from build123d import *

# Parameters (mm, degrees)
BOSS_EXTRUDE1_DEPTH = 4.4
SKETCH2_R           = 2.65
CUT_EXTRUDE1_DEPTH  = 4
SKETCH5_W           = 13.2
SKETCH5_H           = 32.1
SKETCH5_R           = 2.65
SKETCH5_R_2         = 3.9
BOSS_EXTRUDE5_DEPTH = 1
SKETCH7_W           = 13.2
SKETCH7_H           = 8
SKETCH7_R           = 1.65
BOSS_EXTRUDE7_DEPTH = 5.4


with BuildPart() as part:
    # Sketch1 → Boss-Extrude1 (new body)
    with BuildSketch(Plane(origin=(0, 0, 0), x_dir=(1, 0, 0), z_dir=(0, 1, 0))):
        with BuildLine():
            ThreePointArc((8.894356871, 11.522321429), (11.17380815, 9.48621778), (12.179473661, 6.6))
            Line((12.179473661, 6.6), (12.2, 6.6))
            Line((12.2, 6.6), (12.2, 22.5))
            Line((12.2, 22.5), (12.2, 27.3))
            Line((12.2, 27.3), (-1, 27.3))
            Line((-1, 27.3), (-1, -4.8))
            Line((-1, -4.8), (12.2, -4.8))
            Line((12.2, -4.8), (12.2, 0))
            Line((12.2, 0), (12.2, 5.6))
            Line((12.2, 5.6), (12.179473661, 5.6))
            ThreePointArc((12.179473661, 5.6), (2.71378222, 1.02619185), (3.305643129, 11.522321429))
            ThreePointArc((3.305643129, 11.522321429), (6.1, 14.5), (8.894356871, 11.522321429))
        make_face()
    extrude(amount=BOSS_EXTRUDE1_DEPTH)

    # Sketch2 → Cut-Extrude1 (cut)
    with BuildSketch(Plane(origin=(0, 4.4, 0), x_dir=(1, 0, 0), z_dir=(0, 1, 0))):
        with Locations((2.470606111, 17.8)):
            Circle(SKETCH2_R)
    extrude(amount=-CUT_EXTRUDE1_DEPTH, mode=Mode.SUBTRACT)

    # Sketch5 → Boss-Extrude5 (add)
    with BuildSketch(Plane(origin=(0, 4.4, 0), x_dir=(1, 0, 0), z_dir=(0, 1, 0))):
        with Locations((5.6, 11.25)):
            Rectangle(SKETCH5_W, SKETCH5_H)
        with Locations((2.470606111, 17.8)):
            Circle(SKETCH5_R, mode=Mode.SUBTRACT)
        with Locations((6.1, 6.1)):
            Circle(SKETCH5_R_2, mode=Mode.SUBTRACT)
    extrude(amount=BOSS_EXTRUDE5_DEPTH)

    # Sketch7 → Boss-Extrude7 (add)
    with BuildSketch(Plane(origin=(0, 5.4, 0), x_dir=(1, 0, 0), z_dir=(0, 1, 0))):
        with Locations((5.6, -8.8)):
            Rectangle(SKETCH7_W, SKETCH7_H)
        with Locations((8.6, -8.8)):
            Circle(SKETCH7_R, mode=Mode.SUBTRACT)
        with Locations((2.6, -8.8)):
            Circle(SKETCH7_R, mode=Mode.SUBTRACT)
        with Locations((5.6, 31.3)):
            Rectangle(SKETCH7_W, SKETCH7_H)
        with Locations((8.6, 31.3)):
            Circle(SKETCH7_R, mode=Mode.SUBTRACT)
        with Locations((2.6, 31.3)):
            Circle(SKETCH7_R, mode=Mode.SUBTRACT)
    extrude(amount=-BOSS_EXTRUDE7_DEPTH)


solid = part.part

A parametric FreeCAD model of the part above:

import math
import FreeCAD as App
import Part
import Sketcher
Q = App.Units.Quantity


def add_polygon(sketch, points):
    """Adds a closed chain of lines whose ends are joined by coincident constraints."""
    first, n = sketch.GeometryCount, len(points)
    for a, b in zip(points, points[1:] + points[:1]):
        sketch.addGeometry(Part.LineSegment(App.Vector(*a, 0), App.Vector(*b, 0)), False)
    for i in range(n):
        sketch.addConstraint(Sketcher.Constraint("Coincident", first + i, 2, first + (i + 1) % n, 1))

doc = App.newDocument("Part")
params = doc.addObject("Spreadsheet::Sheet", "Params")
for row, (alias, value) in enumerate([
    ("sketch1_radius", "6.1 mm"),
    ("sketch1_radius2", "2.8 mm"),
    ("sketch1_width", "13.2 mm"),
    ("sketch1_height", "20.7 mm"),
    ("sketch1_height2", "32.1 mm"),
    ("pad1_length", "4.4 mm"),
    ("sketch2_diameter", "5.3 mm"),
    ("pocket1_length", "4 mm"),
    ("sketch3_diameter", "7.8 mm"),
    ("sketch3_diameter2", "5.3 mm"),
    ("sketch3_width", "13.2 mm"),
    ("sketch3_height", "32.1 mm"),
    ("pad2_length", "1 mm"),
    ("sketch4_diameter", "3.3 mm"),
    ("sketch4_height", "8 mm"),
    ("sketch4_width", "13.2 mm"),
    ("pad3_length", "5.4 mm"),
], start=1):
    params.set(f"A{row}", alias)
    params.set(f"B{row}", "=" + value)
    params.setAlias(f"B{row}", alias)

body = doc.addObject("PartDesign::Body", "Body")

# Sketch on XZ plane
sketch1 = body.newObject("Sketcher::SketchObject", "Sketch")
sketch1.AttachmentSupport = (doc.getObject("XZ_Plane"), [""])
sketch1.MapMode = "FlatFace"
sketch1.addGeometry([
    Part.ArcOfCircle(Part.Circle(App.Vector(6.1, -6.1, 0), App.Vector(0, 0, 1), 6.1), math.radians(-63), math.radians(-5)),  # 0
    Part.LineSegment(App.Vector(12.179, -6.6, 0), App.Vector(12.2, -6.6, 0)),  # 1
    Part.LineSegment(App.Vector(12.2, -6.6, 0), App.Vector(12.2, -27.3, 0)),  # 2
    Part.LineSegment(App.Vector(12.2, -27.3, 0), App.Vector(-1, -27.3, 0)),  # 3
    Part.LineSegment(App.Vector(-1, -27.3, 0), App.Vector(-1, 4.8, 0)),  # 4
    Part.LineSegment(App.Vector(-1, 4.8, 0), App.Vector(12.2, 4.8, 0)),  # 5
    Part.LineSegment(App.Vector(12.2, 4.8, 0), App.Vector(12.2, -5.6, 0)),  # 6
    Part.LineSegment(App.Vector(12.2, -5.6, 0), App.Vector(12.179, -5.6, 0)),  # 7
    Part.ArcOfCircle(Part.Circle(App.Vector(6.1, -6.1, 0), App.Vector(0, 0, 1), 6.1), math.radians(5), math.radians(243)),  # 8
    Part.ArcOfCircle(Part.Circle(App.Vector(6.1, -11.7, 0), App.Vector(0, 0, 1), 2.8), math.radians(176), math.radians(364)),  # 9
], False)
sketch1.addConstraint([
    Sketcher.Constraint("Coincident", 0, 2, 1, 1),
    Sketcher.Constraint("Coincident", 1, 2, 2, 1),
    Sketcher.Constraint("Coincident", 2, 2, 3, 1),
    Sketcher.Constraint("Coincident", 3, 2, 4, 1),
    Sketcher.Constraint("Coincident", 4, 2, 5, 1),
    Sketcher.Constraint("Coincident", 5, 2, 6, 1),
    Sketcher.Constraint("Coincident", 6, 2, 7, 1),
    Sketcher.Constraint("Coincident", 7, 2, 8, 1),
    Sketcher.Constraint("Coincident", 8, 2, 9, 1),
    Sketcher.Constraint("Coincident", 9, 2, 0, 1),
    Sketcher.Constraint("Horizontal", 1),
    Sketcher.Constraint("Vertical", 2),
    Sketcher.Constraint("Horizontal", 3),
    Sketcher.Constraint("Vertical", 4),
    Sketcher.Constraint("Horizontal", 5),
    Sketcher.Constraint("Vertical", 6),
    Sketcher.Constraint("Horizontal", 7),
    Sketcher.Constraint("Coincident", 8, 3, 0, 3),
    Sketcher.Constraint("Equal", 0, 8),
    Sketcher.Constraint("Horizontal", 8, 2, 9, 2),
    Sketcher.Constraint("Vertical", 2, 2, 5, 2),
    Sketcher.Constraint("Vertical", 0, 2, 7, 2),
    Sketcher.Constraint("Radius", 0, Q("6.1 mm")),
    Sketcher.Constraint("Radius", 9, Q("2.8 mm")),
    Sketcher.Constraint("DistanceX", 3, 2, 3, 1, Q("13.2 mm")),
    Sketcher.Constraint("DistanceY", 2, 2, 2, 1, Q("20.7 mm")),
    Sketcher.Constraint("DistanceY", 4, 1, 4, 2, Q("32.1 mm")),
    Sketcher.Constraint("DistanceY", 6, 2, 6, 1, Q("10.4 mm")),
    Sketcher.Constraint("DistanceX", 3, 2, -1, 1, Q("1 mm")),
    Sketcher.Constraint("DistanceX", -1, 1, 0, 3, Q("6.1 mm")),
    Sketcher.Constraint("DistanceY", 0, 3, -1, 1, Q("6.1 mm")),
    Sketcher.Constraint("DistanceY", 9, 3, -1, 1, Q("11.7 mm")),
])
sketch1.setExpression("Constraints[22]", "Params.sketch1_radius")
sketch1.setExpression("Constraints[23]", "Params.sketch1_radius2")
sketch1.setExpression("Constraints[24]", "Params.sketch1_width")
sketch1.setExpression("Constraints[25]", "Params.sketch1_height")
sketch1.setExpression("Constraints[26]", "Params.sketch1_height2")
pad1 = body.newObject("PartDesign::Pad", "Pad")
pad1.Profile = sketch1
pad1.setExpression("Length", "Params.pad1_length")
pad1.Reversed = True

# Sketch on XZ plane
sketch2 = body.newObject("Sketcher::SketchObject", "Sketch001")
sketch2.AttachmentSupport = (doc.getObject("XZ_Plane"), [""])
sketch2.MapMode = "FlatFace"
sketch2.AttachmentOffset = App.Placement(App.Vector(0, 0, -4.4), App.Rotation())
sketch2.addGeometry(Part.Circle(App.Vector(2.5, -17.8, 0), App.Vector(0, 0, 1), 2.6), False)
sketch2.addConstraint([
    Sketcher.Constraint("Diameter", 0, Q("5.3 mm")),
    Sketcher.Constraint("DistanceY", 0, 3, -1, 1, Q("17.8 mm")),
    Sketcher.Constraint("DistanceX", -1, 1, 0, 3, Q("2.470606 mm")),
])
sketch2.setExpression("Constraints[0]", "Params.sketch2_diameter")
pocket1 = body.newObject("PartDesign::Pocket", "Pocket")
pocket1.Profile = sketch2
pocket1.setExpression("Length", "Params.pocket1_length")
pocket1.Reversed = True

# Sketch on XZ plane
sketch3 = body.newObject("Sketcher::SketchObject", "Sketch002")
sketch3.AttachmentSupport = (doc.getObject("XZ_Plane"), [""])
sketch3.MapMode = "FlatFace"
sketch3.AttachmentOffset = App.Placement(App.Vector(0, 0, -4.4), App.Rotation())
add_polygon(sketch3, [(-1, -27.3), (-1, 4.8), (12.2, 4.8), (12.2, -27.3)])  # lines 0-3
sketch3.addGeometry(Part.Circle(App.Vector(6.1, -6.1, 0), App.Vector(0, 0, 1), 3.9), False)  # 4
sketch3.addGeometry(Part.Circle(App.Vector(2.5, -17.8, 0), App.Vector(0, 0, 1), 2.6), False)  # 5
sketch3.addConstraint([
    Sketcher.Constraint("Vertical", 0),
    Sketcher.Constraint("Horizontal", 1),
    Sketcher.Constraint("Vertical", 2),
    Sketcher.Constraint("Horizontal", 3),
    Sketcher.Constraint("Diameter", 4, Q("7.8 mm")),
    Sketcher.Constraint("Diameter", 5, Q("5.3 mm")),
    Sketcher.Constraint("DistanceX", 1, 1, 1, 2, Q("13.2 mm")),
    Sketcher.Constraint("DistanceY", 0, 1, 0, 2, Q("32.1 mm")),
    Sketcher.Constraint("DistanceX", 0, 2, -1, 1, Q("1 mm")),
    Sketcher.Constraint("DistanceX", -1, 1, 4, 3, Q("6.1 mm")),
    Sketcher.Constraint("DistanceY", 4, 3, -1, 1, Q("6.1 mm")),
    Sketcher.Constraint("DistanceY", 5, 3, -1, 1, Q("17.8 mm")),
    Sketcher.Constraint("DistanceY", -1, 1, 0, 2, Q("4.8 mm")),
    Sketcher.Constraint("DistanceX", -1, 1, 5, 3, Q("2.470606 mm")),
])
sketch3.setExpression("Constraints[8]", "Params.sketch3_diameter")
sketch3.setExpression("Constraints[9]", "Params.sketch3_diameter2")
sketch3.setExpression("Constraints[10]", "Params.sketch3_width")
sketch3.setExpression("Constraints[11]", "Params.sketch3_height")
pad2 = body.newObject("PartDesign::Pad", "Pad001")
pad2.Profile = sketch3
pad2.setExpression("Length", "Params.pad2_length")
pad2.Reversed = True

# Sketch on XZ plane
sketch4 = body.newObject("Sketcher::SketchObject", "Sketch003")
sketch4.AttachmentSupport = (doc.getObject("XZ_Plane"), [""])
sketch4.MapMode = "FlatFace"
sketch4.AttachmentOffset = App.Placement(App.Vector(0, 0, -5.4), App.Rotation())
add_polygon(sketch4, [(-1, 4.8), (-1, 12.8), (12.2, 12.8), (12.2, 4.8)])  # lines 0-3
sketch4.addGeometry(Part.Circle(App.Vector(2.6, 8.8, 0), App.Vector(0, 0, 1), 1.6), False)  # 4
sketch4.addGeometry(Part.Circle(App.Vector(8.6, 8.8, 0), App.Vector(0, 0, 1), 1.6), False)  # 5
add_polygon(sketch4, [(-1, -35.3), (-1, -27.3), (12.2, -27.3), (12.2, -35.3)])  # lines 6-9
sketch4.addGeometry(Part.Circle(App.Vector(2.6, -31.3, 0), App.Vector(0, 0, 1), 1.6), False)  # 10
sketch4.addGeometry(Part.Circle(App.Vector(8.6, -31.3, 0), App.Vector(0, 0, 1), 1.6), False)  # 11
sketch4.addConstraint([
    Sketcher.Constraint("Vertical", 0),
    Sketcher.Constraint("Horizontal", 1),
    Sketcher.Constraint("Vertical", 2),
    Sketcher.Constraint("Horizontal", 3),
    Sketcher.Constraint("Vertical", 6),
    Sketcher.Constraint("Horizontal", 7),
    Sketcher.Constraint("Vertical", 8),
    Sketcher.Constraint("Horizontal", 9),
    Sketcher.Constraint("Equal", 4, 5),
    Sketcher.Constraint("Equal", 5, 10),
    Sketcher.Constraint("Equal", 10, 11),
    Sketcher.Constraint("Horizontal", 4, 3, 5, 3),
    Sketcher.Constraint("Horizontal", 10, 3, 11, 3),
    Sketcher.Constraint("Vertical", 4, 3, 10, 3),
    Sketcher.Constraint("Vertical", 5, 3, 11, 3),
    Sketcher.Constraint("Vertical", 3, 2, 6, 2),
    Sketcher.Constraint("Vertical", 2, 2, 7, 2),
    Sketcher.Constraint("Equal", 2, 6),
    Sketcher.Constraint("Diameter", 4, Q("3.3 mm")),
    Sketcher.Constraint("DistanceY", 0, 1, 0, 2, Q("8 mm")),
    Sketcher.Constraint("DistanceX", 1, 1, 1, 2, Q("13.2 mm")),
    Sketcher.Constraint("DistanceX", 0, 2, -1, 1, Q("1 mm")),
    Sketcher.Constraint("DistanceX", 4, 3, 5, 3, Q("6 mm")),
    Sketcher.Constraint("DistanceY", 4, 3, 0, 2, Q("4 mm")),
    Sketcher.Constraint("DistanceY", 10, 3, 6, 2, Q("4 mm")),
    Sketcher.Constraint("DistanceX", -1, 1, 4, 3, Q("2.6 mm")),
    Sketcher.Constraint("DistanceY", -1, 1, 4, 3, Q("8.8 mm")),
    Sketcher.Constraint("DistanceY", 10, 3, -1, 1, Q("31.3 mm")),
])
sketch4.setExpression("Constraints[26]", "Params.sketch4_diameter")
sketch4.setExpression("Constraints[27]", "Params.sketch4_height")
sketch4.setExpression("Constraints[28]", "Params.sketch4_width")
pad3 = body.newObject("PartDesign::Pad", "Pad002")
pad3.Profile = sketch4
pad3.setExpression("Length", "Params.pad3_length")

doc.recompute()
